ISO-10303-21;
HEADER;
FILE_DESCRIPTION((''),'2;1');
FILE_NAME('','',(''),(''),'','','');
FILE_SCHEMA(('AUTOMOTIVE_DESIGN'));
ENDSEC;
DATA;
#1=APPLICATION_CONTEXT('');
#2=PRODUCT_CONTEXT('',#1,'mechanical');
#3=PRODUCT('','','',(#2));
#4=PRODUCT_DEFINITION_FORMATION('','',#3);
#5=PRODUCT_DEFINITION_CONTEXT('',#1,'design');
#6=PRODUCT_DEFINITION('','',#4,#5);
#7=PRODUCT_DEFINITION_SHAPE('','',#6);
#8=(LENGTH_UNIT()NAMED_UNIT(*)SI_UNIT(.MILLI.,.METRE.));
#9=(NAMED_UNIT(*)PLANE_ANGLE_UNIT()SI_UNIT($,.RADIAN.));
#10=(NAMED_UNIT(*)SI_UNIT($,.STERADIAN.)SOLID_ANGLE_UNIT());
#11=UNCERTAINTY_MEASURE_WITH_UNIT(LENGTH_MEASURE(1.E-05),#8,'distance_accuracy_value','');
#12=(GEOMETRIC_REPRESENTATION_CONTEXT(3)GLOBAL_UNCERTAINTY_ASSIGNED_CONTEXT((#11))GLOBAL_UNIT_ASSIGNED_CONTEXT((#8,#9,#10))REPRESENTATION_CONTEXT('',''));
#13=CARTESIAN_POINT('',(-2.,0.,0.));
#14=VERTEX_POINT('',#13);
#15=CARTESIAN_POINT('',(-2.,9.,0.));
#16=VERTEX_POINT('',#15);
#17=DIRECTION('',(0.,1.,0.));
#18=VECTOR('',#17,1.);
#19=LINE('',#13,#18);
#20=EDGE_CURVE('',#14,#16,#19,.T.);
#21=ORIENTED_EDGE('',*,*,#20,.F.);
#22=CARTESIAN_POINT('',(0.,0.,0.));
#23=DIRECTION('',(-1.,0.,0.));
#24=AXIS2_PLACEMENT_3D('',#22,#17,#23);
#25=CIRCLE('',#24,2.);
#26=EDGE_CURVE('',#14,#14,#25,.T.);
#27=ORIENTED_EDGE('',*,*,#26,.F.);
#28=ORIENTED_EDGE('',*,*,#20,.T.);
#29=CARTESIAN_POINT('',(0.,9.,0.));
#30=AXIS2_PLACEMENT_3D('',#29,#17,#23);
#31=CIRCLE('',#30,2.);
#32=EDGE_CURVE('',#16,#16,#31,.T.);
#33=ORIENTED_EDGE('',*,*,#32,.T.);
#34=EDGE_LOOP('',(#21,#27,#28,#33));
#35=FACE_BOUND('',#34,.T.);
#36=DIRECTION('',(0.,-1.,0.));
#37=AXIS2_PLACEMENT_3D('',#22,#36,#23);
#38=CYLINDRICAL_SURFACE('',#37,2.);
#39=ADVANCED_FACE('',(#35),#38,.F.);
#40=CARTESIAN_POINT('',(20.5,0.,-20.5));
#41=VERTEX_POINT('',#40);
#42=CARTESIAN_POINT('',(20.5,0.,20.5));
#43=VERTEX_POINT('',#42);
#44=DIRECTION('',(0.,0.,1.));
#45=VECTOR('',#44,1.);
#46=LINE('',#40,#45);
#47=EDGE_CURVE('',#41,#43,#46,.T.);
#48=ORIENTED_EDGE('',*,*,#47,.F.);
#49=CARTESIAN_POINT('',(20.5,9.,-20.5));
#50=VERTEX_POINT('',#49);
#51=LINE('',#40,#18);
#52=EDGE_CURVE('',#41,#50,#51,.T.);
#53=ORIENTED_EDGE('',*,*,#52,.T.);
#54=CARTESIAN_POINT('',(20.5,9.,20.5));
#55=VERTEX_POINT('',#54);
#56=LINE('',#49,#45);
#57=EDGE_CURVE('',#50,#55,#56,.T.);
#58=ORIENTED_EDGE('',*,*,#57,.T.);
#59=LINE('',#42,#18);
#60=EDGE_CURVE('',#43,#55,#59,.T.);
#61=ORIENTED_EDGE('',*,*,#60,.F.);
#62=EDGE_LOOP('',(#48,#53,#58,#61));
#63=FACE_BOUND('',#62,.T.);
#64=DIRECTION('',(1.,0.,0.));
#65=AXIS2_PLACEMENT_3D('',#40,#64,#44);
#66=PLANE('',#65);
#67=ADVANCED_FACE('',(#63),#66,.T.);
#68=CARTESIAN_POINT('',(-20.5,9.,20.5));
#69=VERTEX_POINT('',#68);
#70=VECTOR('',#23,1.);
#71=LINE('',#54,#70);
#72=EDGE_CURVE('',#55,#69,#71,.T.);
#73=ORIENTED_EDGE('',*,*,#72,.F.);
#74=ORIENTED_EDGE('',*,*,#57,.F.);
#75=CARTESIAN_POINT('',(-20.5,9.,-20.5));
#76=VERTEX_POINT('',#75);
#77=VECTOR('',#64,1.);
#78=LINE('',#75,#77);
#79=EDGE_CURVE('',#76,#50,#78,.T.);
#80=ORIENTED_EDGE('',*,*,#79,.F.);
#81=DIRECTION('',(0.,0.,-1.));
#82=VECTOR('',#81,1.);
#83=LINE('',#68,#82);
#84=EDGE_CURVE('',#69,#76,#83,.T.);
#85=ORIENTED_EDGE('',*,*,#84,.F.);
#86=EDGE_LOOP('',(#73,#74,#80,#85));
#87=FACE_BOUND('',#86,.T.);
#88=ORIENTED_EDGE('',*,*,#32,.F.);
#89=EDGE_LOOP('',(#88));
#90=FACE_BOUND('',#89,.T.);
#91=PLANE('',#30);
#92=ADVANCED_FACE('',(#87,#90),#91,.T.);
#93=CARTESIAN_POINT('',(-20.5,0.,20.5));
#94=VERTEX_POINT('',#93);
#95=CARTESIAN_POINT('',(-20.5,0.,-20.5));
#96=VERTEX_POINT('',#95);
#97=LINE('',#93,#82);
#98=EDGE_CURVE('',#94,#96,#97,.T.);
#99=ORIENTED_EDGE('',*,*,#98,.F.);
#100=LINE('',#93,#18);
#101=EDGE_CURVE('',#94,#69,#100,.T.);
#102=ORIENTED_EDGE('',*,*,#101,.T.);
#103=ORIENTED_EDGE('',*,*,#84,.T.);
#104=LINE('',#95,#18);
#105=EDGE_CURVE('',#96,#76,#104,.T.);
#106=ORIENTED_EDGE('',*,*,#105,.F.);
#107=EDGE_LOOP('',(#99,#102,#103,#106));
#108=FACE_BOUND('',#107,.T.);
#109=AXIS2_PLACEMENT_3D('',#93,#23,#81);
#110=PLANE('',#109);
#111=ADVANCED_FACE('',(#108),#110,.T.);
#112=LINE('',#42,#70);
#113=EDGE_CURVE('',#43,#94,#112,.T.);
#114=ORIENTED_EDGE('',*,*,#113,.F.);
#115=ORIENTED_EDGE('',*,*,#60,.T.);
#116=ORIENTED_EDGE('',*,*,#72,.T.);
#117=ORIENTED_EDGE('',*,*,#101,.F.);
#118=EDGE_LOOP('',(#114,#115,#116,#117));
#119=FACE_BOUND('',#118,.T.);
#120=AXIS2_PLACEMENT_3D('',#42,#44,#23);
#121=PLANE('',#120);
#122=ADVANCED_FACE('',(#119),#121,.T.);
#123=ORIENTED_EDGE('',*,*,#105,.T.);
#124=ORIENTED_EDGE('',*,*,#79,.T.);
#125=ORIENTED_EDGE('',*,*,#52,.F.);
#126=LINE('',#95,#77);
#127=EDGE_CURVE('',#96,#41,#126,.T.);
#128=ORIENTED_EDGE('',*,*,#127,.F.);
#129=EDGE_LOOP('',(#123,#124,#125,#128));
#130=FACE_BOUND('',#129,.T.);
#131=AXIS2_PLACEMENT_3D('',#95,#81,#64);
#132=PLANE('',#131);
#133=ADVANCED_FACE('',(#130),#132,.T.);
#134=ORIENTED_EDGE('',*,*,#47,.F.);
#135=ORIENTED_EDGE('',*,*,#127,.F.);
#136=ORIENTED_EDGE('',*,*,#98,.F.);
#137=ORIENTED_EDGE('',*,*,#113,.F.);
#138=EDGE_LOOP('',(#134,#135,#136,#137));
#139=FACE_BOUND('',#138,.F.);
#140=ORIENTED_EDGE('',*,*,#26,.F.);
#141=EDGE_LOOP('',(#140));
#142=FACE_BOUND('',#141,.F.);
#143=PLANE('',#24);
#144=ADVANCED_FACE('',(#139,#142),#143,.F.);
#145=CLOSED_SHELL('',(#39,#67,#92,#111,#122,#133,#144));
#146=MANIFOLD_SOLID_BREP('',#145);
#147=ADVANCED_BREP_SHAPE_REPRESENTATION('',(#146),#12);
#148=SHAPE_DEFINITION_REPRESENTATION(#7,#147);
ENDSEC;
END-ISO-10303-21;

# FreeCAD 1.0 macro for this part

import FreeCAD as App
import Part
import Sketcher


def add_polygon(sketch, points):
    """Adds a closed chain of lines whose ends are joined by coincident constraints."""
    first, n = sketch.GeometryCount, len(points)
    for a, b in zip(points, points[1:] + points[:1]):
        sketch.addGeometry(Part.LineSegment(App.Vector(*a, 0), App.Vector(*b, 0)), False)
    for i in range(n):
        sketch.addConstraint(Sketcher.Constraint("Coincident", first + i, 2, first + (i + 1) % n, 1))

doc = App.newDocument("Part")
body = doc.addObject("PartDesign::Body", "Body")

# Sketch on XZ plane
sketch1 = body.newObject("Sketcher::SketchObject", "Sketch")
sketch1.AttachmentSupport = (doc.getObject("XZ_Plane"), [""])
sketch1.MapMode = "FlatFace"
add_polygon(sketch1, [(-20.5, 20.5), (20.5, 20.5), (20.5, -20.5), (-20.5, -20.5)])  # lines 0-3
sketch1.addGeometry(Part.Circle(App.Vector(0, 0, 0), App.Vector(0, 0, 1), 2), False)  # 4
sketch1.addConstraint([
    Sketcher.Constraint("Horizontal", 0),
    Sketcher.Constraint("Vertical", 1),
    Sketcher.Constraint("Horizontal", 2),
    Sketcher.Constraint("Vertical", 3),
    Sketcher.Constraint("Coincident", 4, 3, -1, 1),
    Sketcher.Constraint("Symmetric", 0, 2, 2, 2, -1, 1),
    Sketcher.Constraint("Equal", 2, 1),
    Sketcher.Constraint("Diameter", 4, 4.0),
    Sketcher.Constraint("DistanceX", 0, 1, 0, 2, 41.0),
])
pad1 = body.newObject("PartDesign::Pad", "Pad")
pad1.Profile = sketch1
pad1.Length = 9
pad1.Reversed = True

doc.recompute()
